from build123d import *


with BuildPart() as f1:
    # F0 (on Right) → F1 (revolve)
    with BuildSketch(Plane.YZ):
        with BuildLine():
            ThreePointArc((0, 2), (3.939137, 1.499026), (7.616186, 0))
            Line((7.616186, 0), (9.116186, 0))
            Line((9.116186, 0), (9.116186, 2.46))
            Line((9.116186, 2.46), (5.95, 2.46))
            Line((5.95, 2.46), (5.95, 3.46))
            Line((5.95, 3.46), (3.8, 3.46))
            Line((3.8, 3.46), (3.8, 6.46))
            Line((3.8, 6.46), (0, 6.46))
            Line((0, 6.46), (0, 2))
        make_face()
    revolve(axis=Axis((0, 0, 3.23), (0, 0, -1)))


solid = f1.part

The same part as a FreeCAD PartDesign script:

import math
import FreeCAD as App
import Part
import Sketcher
from FreeCAD import Vector

doc = App.newDocument("Part")
body = doc.addObject("PartDesign::Body", "Body")

sketch1 = body.newObject("Sketcher::SketchObject", "Sketch")
sketch1.AttachmentSupport = (doc.getObject("YZ_Plane"), [""])
sketch1.MapMode = "FlatFace"
sketch1.addGeometry([
    Part.ArcOfCircle(Part.Circle(Vector(0.1, -13.3, 0), Vector(0, 0, 1), 15.3), math.radians(60), math.radians(90)),
    Part.LineSegment(Vector(7.6, 0, 0), Vector(9.1, 0, 0)),
    Part.LineSegment(Vector(9.1, 0, 0), Vector(9.1, 2.5, 0)),
    Part.LineSegment(Vector(9.1, 2.5, 0), Vector(6, 2.5, 0)),
    Part.LineSegment(Vector(6, 2.5, 0), Vector(6, 3.5, 0)),
    Part.LineSegment(Vector(6, 3.5, 0), Vector(3.8, 3.5, 0)),
    Part.LineSegment(Vector(3.8, 3.5, 0), Vector(3.8, 6.5, 0)),
    Part.LineSegment(Vector(3.8, 6.5, 0), Vector(0, 6.5, 0)),
    Part.LineSegment(Vector(0, 6.5, 0), Vector(0, 2, 0)),
], False)
sketch1.addConstraint([
    Sketcher.Constraint("Coincident", 0, 1, 1, 1),
    Sketcher.Constraint("Coincident", 1, 2, 2, 1),
    Sketcher.Constraint("Coincident", 2, 2, 3, 1),
    Sketcher.Constraint("Coincident", 3, 2, 4, 1),
    Sketcher.Constraint("Coincident", 4, 2, 5, 1),
    Sketcher.Constraint("Coincident", 5, 2, 6, 1),
    Sketcher.Constraint("Coincident", 6, 2, 7, 1),
    Sketcher.Constraint("Coincident", 7, 2, 8, 1),
    Sketcher.Constraint("Coincident", 8, 2, 0, 2),
    Sketcher.Constraint("Horizontal", 1),
    Sketcher.Constraint("Vertical", 2),
    Sketcher.Constraint("Horizontal", 3),
    Sketcher.Constraint("Vertical", 4),
    Sketcher.Constraint("Horizontal", 5),
    Sketcher.Constraint("Vertical", 6),
    Sketcher.Constraint("Horizontal", 7),
    Sketcher.Constraint("Vertical", 8),
    Sketcher.Constraint("PointOnObject", 0, 1, -1),
    Sketcher.Constraint("PointOnObject", 7, 2, -2),
    Sketcher.Constraint("DistanceY", 4, 1, 4, 2, 1.0),
    Sketcher.Constraint("DistanceY", 6, 1, 6, 2, 3.0),
    Sketcher.Constraint("DistanceX", 1, 1, 1, 2, 1.5),
    Sketcher.Constraint("DistanceX", 7, 2, 7, 1, 3.8),
    Sketcher.Constraint("DistanceY", -1, 1, 8, 2, 2.0),
    Sketcher.Constraint("DistanceX", 5, 2, 5, 1, 2.15),
    Sketcher.Constraint("DistanceY", 2, 1, 2, 2, 2.46),
    Sketcher.Constraint("Radius", 0, 15.280471),
    Sketcher.Constraint("DistanceX", 3, 2, 3, 1, 3.166186),
])
revolution = body.newObject("PartDesign::Revolution", "Revolution")
revolution.Profile = sketch1
revolution.ReferenceAxis = (sketch1, ["V_Axis"])
revolution.Angle = 360

doc.recompute()
